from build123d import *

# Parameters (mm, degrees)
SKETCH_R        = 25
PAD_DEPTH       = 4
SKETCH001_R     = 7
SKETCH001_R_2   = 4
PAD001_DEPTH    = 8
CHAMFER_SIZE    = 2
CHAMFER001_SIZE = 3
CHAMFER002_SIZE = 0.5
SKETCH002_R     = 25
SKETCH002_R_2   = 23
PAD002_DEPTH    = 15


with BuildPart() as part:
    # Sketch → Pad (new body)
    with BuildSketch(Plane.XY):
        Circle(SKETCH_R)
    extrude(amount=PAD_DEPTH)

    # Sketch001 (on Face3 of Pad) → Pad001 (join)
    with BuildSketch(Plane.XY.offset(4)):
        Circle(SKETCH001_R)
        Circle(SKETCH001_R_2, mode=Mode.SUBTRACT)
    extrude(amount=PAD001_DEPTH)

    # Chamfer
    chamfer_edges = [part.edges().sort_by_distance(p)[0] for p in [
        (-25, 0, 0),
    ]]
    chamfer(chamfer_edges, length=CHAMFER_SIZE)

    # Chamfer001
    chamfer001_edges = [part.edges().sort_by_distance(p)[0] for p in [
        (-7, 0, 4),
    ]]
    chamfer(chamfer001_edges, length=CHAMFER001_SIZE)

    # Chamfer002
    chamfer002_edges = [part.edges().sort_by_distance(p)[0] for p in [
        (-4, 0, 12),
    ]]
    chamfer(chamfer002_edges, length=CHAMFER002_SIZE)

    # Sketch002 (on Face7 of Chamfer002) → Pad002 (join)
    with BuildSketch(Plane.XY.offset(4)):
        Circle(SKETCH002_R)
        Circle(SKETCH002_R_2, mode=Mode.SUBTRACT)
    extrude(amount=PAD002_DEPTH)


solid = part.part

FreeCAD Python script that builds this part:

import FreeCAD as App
import Part
import Sketcher

V = App.Vector
Q = App.Units.Quantity


def edges_at(feature, points):
    """Names of the edges that pass closest to the given points."""
    edges = feature.Shape.Edges
    near = lambda p: min(range(len(edges)), key=lambda i: edges[i].distToShape(Part.Vertex(*p))[0])
    return sorted({f"Edge{near(p) + 1}" for p in points})

doc = App.newDocument("Part")
body = doc.addObject("PartDesign::Body", "Body")

sketch1 = doc.addObject("Sketcher::SketchObject", "Sketch")
body.addObject(sketch1)
sketch1.AttachmentSupport = (doc.XY_Plane, [""])
sketch1.MapMode = "FlatFace"
sketch1.addGeometry(Part.Circle(V(0, 0, 0), V(0, 0, 1), 25), False)
sketch1.addConstraint([
    Sketcher.Constraint("Coincident", 0, 3, -1, 1),
    Sketcher.Constraint("Diameter", 0, Q("50 mm")),
])
pad1 = doc.addObject("PartDesign::Pad", "Pad")
body.addObject(pad1)
pad1.Profile = sketch1
pad1.Length = 4

sketch2 = doc.addObject("Sketcher::SketchObject", "Sketch001")
body.addObject(sketch2)
sketch2.AttachmentSupport = (doc.XY_Plane, [""])
sketch2.MapMode = "FlatFace"
sketch2.AttachmentOffset = App.Placement(V(0, 0, 4), App.Rotation())
sketch2.addGeometry([
    Part.Circle(V(0, 0, 0), V(0, 0, 1), 7),
    Part.Circle(V(0, 0, 0), V(0, 0, 1), 4),
], False)
sketch2.addConstraint([
    Sketcher.Constraint("Coincident", 0, 3, -1, 1),
    Sketcher.Constraint("Coincident", 1, 3, -1, 1),
    Sketcher.Constraint("Diameter", 0, Q("14 mm")),
    Sketcher.Constraint("Diameter", 1, Q("8 mm")),
])
pad2 = doc.addObject("PartDesign::Pad", "Pad001")
body.addObject(pad2)
pad2.Profile = sketch2
pad2.Length = 8
doc.recompute()

chamfer = doc.addObject("PartDesign::Chamfer", "Chamfer")
body.addObject(chamfer)
chamfer.Base = (pad2, edges_at(pad2, [(-25, 0, 0)]))
chamfer.Size = 2
doc.recompute()

chamfer2 = doc.addObject("PartDesign::Chamfer", "Chamfer001")
body.addObject(chamfer2)
chamfer2.Base = (chamfer, edges_at(chamfer, [(-7, 0, 4)]))
chamfer2.Size = 3
doc.recompute()

chamfer3 = doc.addObject("PartDesign::Chamfer", "Chamfer002")
body.addObject(chamfer3)
chamfer3.Base = (chamfer2, edges_at(chamfer2, [(-4, 0, 12)]))
chamfer3.Size = 0.5

sketch3 = doc.addObject("Sketcher::SketchObject", "Sketch002")
body.addObject(sketch3)
sketch3.AttachmentSupport = (doc.XY_Plane, [""])
sketch3.MapMode = "FlatFace"
sketch3.AttachmentOffset = App.Placement(V(0, 0, 4), App.Rotation())
sketch3.addGeometry([
    Part.Circle(V(0, 0, 0), V(0, 0, 1), 25),
    Part.Circle(V(0, 0, 0), V(0, 0, 1), 23),
], False)
sketch3.addConstraint([
    Sketcher.Constraint("Coincident", 0, 3, -1, 1),
    Sketcher.Constraint("Coincident", 1, 3, -1, 1),
    Sketcher.Constraint("Diameter", 0, Q("50 mm")),
    Sketcher.Constraint("Diameter", 1, Q("46 mm")),
])
pad3 = doc.addObject("PartDesign::Pad", "Pad002")
body.addObject(pad3)
pad3.Profile = sketch3
pad3.Length = 15

doc.recompute()
